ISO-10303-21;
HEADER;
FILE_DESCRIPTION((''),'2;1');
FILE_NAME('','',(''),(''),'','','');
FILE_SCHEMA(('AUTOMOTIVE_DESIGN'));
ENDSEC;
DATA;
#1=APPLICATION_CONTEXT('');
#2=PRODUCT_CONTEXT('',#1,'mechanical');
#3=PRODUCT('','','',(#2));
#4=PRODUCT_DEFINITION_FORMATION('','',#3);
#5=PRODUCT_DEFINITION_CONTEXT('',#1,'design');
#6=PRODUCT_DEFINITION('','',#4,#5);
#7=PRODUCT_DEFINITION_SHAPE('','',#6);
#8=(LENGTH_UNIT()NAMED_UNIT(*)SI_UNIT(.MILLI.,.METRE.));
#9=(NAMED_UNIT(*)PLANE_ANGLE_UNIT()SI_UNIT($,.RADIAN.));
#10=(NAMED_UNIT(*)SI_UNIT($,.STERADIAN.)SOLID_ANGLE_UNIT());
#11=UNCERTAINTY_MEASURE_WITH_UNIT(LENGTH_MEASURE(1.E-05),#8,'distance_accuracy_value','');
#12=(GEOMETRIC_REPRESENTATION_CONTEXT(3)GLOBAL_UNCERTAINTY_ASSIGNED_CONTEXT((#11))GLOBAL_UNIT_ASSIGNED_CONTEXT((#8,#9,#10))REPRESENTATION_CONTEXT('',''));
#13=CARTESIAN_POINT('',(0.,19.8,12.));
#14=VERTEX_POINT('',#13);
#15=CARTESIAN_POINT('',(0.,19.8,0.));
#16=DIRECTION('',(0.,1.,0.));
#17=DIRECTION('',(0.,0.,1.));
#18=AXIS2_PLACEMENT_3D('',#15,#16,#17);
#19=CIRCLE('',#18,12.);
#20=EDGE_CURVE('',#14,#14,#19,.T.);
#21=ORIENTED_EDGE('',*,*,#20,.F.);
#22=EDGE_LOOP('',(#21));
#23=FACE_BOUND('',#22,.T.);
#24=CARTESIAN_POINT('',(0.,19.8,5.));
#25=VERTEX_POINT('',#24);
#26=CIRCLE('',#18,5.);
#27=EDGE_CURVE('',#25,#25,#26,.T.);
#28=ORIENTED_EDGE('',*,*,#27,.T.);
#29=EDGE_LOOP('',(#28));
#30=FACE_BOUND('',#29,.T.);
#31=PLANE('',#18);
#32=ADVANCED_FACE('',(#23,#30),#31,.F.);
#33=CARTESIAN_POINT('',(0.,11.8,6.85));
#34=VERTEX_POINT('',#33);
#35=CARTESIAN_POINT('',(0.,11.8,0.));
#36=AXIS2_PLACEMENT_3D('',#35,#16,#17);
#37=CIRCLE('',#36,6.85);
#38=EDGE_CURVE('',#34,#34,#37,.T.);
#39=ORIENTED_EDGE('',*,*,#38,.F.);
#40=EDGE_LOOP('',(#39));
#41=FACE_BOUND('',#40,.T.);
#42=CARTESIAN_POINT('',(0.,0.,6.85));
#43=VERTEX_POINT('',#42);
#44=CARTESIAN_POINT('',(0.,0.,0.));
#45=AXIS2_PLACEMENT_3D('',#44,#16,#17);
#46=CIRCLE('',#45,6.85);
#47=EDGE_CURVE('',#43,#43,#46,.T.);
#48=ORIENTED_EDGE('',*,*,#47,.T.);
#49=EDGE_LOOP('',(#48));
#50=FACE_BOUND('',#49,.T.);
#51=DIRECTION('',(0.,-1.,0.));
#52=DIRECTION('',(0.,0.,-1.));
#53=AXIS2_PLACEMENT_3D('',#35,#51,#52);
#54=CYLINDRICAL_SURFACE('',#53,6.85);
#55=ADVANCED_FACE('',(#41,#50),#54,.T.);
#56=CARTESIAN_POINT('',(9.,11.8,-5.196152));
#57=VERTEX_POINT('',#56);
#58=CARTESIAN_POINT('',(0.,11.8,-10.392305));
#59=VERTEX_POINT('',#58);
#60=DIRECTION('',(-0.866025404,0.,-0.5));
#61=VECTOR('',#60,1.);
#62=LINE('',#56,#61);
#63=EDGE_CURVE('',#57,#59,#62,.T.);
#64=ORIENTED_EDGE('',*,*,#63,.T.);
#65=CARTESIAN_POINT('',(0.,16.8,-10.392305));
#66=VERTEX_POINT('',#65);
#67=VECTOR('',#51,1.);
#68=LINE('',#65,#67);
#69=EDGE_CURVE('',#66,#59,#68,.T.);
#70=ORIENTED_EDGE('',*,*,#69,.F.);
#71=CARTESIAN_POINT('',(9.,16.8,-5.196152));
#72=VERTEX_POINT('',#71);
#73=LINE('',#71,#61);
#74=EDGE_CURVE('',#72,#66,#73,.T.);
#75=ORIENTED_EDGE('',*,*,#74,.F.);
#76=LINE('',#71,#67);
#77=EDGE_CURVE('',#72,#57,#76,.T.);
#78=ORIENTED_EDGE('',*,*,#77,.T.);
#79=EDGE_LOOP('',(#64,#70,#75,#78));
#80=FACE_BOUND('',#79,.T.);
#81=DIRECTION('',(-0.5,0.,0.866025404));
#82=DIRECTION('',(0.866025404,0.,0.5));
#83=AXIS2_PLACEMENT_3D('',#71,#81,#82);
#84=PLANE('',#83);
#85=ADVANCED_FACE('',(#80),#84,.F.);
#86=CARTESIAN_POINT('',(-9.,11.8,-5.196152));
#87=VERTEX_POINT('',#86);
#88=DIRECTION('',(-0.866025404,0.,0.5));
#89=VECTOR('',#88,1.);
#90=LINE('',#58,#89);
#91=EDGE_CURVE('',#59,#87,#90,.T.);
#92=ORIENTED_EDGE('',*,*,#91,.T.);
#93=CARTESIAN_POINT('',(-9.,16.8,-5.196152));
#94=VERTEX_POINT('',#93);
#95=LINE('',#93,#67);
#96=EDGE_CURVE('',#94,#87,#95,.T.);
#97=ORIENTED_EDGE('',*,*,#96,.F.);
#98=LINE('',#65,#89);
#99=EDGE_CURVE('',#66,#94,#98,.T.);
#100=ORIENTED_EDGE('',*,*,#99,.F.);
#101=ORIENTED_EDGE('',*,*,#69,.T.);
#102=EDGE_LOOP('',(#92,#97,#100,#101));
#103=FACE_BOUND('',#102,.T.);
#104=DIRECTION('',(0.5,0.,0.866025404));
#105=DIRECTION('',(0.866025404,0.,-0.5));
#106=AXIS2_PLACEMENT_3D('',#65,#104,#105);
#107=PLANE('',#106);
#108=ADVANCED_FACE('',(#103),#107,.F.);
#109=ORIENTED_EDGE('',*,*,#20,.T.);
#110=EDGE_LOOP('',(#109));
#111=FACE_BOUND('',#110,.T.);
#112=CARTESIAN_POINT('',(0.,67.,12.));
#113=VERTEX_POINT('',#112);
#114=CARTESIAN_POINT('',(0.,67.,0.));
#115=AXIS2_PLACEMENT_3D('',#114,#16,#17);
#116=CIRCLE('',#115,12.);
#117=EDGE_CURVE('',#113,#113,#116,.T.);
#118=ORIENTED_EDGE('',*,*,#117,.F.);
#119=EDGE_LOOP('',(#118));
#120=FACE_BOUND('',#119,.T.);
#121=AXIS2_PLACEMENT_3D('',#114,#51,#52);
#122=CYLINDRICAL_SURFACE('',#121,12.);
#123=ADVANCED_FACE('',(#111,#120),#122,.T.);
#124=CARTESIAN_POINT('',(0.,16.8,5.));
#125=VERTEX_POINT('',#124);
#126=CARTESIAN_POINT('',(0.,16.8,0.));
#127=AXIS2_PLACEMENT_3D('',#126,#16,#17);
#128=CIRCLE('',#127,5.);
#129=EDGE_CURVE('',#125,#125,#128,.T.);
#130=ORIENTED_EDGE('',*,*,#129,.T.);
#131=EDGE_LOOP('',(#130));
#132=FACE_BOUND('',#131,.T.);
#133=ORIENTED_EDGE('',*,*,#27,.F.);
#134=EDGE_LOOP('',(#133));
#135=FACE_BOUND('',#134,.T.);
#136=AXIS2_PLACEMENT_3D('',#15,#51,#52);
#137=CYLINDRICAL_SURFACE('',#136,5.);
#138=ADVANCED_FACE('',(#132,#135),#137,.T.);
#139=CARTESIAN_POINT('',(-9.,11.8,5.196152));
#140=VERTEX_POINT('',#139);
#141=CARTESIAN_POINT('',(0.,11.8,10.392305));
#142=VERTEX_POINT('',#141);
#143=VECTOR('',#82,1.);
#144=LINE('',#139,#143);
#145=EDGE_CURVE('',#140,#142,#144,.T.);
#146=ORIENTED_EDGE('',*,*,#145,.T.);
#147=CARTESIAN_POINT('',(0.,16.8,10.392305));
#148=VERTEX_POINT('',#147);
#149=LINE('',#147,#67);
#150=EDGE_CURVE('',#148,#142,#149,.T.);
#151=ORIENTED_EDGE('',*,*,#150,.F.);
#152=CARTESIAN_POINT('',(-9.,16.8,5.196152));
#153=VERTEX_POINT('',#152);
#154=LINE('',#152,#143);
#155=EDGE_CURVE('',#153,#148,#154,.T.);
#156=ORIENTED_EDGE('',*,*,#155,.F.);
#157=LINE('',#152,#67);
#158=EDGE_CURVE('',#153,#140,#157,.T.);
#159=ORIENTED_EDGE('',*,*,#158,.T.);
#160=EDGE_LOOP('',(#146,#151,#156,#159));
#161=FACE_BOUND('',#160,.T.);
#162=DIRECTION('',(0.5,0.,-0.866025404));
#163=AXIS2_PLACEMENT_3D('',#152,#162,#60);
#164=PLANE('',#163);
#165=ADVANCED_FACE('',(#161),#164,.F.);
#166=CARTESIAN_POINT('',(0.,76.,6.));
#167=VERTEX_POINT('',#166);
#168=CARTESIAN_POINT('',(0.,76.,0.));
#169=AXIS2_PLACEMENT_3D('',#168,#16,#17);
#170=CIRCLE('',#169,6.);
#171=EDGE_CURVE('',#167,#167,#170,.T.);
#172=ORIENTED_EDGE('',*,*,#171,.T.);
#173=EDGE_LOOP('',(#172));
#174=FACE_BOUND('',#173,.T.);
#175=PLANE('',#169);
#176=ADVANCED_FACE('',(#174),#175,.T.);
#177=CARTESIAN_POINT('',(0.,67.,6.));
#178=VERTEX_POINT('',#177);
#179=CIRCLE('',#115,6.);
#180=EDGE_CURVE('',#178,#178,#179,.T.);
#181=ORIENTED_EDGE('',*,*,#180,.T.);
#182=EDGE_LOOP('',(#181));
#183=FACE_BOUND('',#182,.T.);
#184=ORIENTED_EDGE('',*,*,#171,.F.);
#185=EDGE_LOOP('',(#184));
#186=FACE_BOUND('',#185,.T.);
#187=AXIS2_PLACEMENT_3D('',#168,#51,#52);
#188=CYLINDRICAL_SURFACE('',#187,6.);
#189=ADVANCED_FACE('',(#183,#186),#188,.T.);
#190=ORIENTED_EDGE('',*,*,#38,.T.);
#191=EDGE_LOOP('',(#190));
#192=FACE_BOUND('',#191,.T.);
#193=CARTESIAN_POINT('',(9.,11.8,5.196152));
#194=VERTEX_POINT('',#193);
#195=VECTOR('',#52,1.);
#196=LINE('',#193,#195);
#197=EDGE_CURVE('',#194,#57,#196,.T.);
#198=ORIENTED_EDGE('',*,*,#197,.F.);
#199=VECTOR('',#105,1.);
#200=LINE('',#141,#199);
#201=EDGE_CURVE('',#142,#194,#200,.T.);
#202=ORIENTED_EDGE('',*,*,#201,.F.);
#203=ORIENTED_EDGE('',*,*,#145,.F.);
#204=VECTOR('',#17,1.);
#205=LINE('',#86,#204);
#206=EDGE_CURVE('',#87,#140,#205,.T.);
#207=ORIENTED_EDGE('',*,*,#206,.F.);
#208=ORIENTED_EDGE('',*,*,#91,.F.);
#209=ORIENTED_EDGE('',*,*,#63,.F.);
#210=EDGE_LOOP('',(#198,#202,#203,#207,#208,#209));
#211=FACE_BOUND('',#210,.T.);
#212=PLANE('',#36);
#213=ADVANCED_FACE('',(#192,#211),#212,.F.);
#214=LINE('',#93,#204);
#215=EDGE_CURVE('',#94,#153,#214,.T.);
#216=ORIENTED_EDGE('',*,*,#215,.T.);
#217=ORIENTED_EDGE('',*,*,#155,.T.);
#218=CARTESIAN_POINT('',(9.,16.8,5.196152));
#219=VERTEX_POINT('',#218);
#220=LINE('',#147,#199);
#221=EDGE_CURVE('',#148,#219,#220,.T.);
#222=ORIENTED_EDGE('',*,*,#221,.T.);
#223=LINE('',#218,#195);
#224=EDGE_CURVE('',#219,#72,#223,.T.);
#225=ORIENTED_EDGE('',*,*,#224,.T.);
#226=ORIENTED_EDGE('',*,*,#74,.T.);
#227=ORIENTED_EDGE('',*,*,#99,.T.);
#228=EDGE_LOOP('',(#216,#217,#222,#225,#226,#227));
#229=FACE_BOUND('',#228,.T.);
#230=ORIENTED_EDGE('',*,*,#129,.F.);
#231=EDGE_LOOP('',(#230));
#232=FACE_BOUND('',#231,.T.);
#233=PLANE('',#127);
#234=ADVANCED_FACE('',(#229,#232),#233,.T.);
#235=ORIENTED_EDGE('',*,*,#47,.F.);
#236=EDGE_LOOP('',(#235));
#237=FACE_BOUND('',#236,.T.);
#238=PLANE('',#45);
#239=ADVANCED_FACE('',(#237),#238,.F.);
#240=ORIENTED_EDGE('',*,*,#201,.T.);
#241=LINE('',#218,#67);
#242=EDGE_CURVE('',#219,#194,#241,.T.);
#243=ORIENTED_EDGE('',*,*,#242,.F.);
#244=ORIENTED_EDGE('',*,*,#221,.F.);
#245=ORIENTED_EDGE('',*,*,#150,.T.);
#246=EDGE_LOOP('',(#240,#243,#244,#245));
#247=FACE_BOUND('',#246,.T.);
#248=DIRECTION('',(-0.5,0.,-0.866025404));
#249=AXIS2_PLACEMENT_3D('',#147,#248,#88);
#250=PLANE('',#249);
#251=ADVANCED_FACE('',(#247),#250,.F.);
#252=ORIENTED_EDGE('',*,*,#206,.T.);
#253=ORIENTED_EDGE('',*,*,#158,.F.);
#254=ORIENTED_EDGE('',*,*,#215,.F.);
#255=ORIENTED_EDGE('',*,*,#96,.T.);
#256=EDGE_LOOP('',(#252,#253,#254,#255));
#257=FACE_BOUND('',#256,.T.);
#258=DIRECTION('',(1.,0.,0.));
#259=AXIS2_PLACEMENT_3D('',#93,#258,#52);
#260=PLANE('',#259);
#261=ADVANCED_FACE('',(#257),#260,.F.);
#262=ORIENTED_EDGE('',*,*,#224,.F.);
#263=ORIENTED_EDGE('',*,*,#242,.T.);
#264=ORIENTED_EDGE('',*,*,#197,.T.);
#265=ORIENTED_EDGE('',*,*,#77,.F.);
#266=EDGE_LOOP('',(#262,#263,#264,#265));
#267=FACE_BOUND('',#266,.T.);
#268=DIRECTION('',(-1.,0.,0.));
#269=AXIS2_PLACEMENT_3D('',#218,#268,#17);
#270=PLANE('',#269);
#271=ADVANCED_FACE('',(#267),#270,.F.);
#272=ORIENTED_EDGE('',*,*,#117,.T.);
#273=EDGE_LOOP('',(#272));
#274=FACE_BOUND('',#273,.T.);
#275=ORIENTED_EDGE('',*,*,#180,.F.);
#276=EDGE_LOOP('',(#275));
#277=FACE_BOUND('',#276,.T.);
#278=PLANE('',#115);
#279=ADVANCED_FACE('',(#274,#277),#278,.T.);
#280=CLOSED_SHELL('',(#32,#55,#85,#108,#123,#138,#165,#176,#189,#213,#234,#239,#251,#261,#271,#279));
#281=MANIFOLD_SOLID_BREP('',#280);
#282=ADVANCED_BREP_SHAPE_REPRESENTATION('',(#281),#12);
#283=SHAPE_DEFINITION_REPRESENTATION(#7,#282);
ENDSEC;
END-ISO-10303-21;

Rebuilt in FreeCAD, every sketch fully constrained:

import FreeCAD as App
import Part
import Sketcher
Q = App.Units.Quantity


def add_polygon(sketch, points):
    """Adds a closed chain of lines whose ends are joined by coincident constraints."""
    first, n = sketch.GeometryCount, len(points)
    for a, b in zip(points, points[1:] + points[:1]):
        sketch.addGeometry(Part.LineSegment(App.Vector(*a, 0), App.Vector(*b, 0)), False)
    for i in range(n):
        sketch.addConstraint(Sketcher.Constraint("Coincident", first + i, 2, first + (i + 1) % n, 1))

doc = App.newDocument("Part")
body = doc.addObject("PartDesign::Body", "Body")

# Sketch on XZ plane
sketch1 = body.newObject("Sketcher::SketchObject", "Sketch")
sketch1.AttachmentSupport = (doc.getObject("XZ_Plane"), [""])
sketch1.MapMode = "FlatFace"
sketch1.addGeometry(Part.Circle(App.Vector(0, 0, 0), App.Vector(0, 0, 1), 7), False)
sketch1.addConstraint(Sketcher.Constraint("Coincident", 0, 3, -1, 1))
sketch1.addConstraint(Sketcher.Constraint("Diameter", 0, Q("13.7 mm")))
pad1 = body.newObject("PartDesign::Pad", "Pad")
pad1.Profile = sketch1
pad1.Length = 11.8
pad1.Reversed = True

# Sketch on XZ plane
sketch2 = body.newObject("Sketcher::SketchObject", "Sketch001")
sketch2.AttachmentSupport = (doc.getObject("XZ_Plane"), [""])
sketch2.MapMode = "FlatFace"
sketch2.AttachmentOffset = App.Placement(App.Vector(0, 0, -11.8), App.Rotation())
add_polygon(sketch2, [(0, -10), (-9, -5), (-9, 5), (0, 10), (9, 5), (9, -5)])  # lines 0-5
sketch2.addConstraint(Sketcher.Constraint("Vertical", 1))
sketch2.addConstraint(Sketcher.Constraint("Vertical", 4))
sketch2.addConstraint(Sketcher.Constraint("Symmetric", 0, 2, 3, 2, -1, 1))
sketch2.addConstraint(Sketcher.Constraint("Symmetric", 2, 2, 5, 2, -1, 1))
sketch2.addConstraint(Sketcher.Constraint("PointOnObject", 2, 2, -2))
sketch2.addConstraint(Sketcher.Constraint("Parallel", 2, 5))
sketch2.addConstraint(Sketcher.Constraint("Horizontal", 1, 2, 3, 2))
sketch2.addConstraint(Sketcher.Constraint("Angle", 0, Q("150 deg")))
sketch2.addConstraint(Sketcher.Constraint("DistanceX", 0, 2, -1, 1, Q("9 mm")))
sketch2.addConstraint(Sketcher.Constraint("DistanceY", 1, 1, 1, 2, Q("10.392305 mm")))
pad2 = body.newObject("PartDesign::Pad", "Pad001")
pad2.Profile = sketch2
pad2.Length = 5
pad2.Reversed = True

# Sketch on XZ plane
sketch3 = body.newObject("Sketcher::SketchObject", "Sketch002")
sketch3.AttachmentSupport = (doc.getObject("XZ_Plane"), [""])
sketch3.MapMode = "FlatFace"
sketch3.AttachmentOffset = App.Placement(App.Vector(0, 0, -16.8), App.Rotation())
sketch3.addGeometry(Part.Circle(App.Vector(0, 0, 0), App.Vector(0, 0, 1), 5), False)
sketch3.addConstraint(Sketcher.Constraint("Coincident", 0, 3, -1, 1))
sketch3.addConstraint(Sketcher.Constraint("Diameter", 0, Q("10 mm")))
pad3 = body.newObject("PartDesign::Pad", "Pad002")
pad3.Profile = sketch3
pad3.Length = 3
pad3.Reversed = True

# Sketch on XZ plane
sketch4 = body.newObject("Sketcher::SketchObject", "Sketch003")
sketch4.AttachmentSupport = (doc.getObject("XZ_Plane"), [""])
sketch4.MapMode = "FlatFace"
sketch4.AttachmentOffset = App.Placement(App.Vector(0, 0, -19.8), App.Rotation())
sketch4.addGeometry(Part.Circle(App.Vector(0, 0, 0), App.Vector(0, 0, 1), 12), False)
sketch4.addConstraint(Sketcher.Constraint("Coincident", 0, 3, -1, 1))
sketch4.addConstraint(Sketcher.Constraint("Diameter", 0, Q("24 mm")))
pad4 = body.newObject("PartDesign::Pad", "Pad003")
pad4.Profile = sketch4
pad4.Length = 47.2
pad4.Reversed = True

# Sketch on XZ plane
sketch5 = body.newObject("Sketcher::SketchObject", "Sketch004")
sketch5.AttachmentSupport = (doc.getObject("XZ_Plane"), [""])
sketch5.MapMode = "FlatFace"
sketch5.AttachmentOffset = App.Placement(App.Vector(0, 0, -67), App.Rotation())
sketch5.addGeometry(Part.Circle(App.Vector(0, 0, 0), App.Vector(0, 0, 1), 6), False)
sketch5.addConstraint(Sketcher.Constraint("Coincident", 0, 3, -1, 1))
sketch5.addConstraint(Sketcher.Constraint("Diameter", 0, Q("12 mm")))
pad5 = body.newObject("PartDesign::Pad", "Pad004")
pad5.Profile = sketch5
pad5.Length = 9
pad5.Reversed = True

doc.recompute()
